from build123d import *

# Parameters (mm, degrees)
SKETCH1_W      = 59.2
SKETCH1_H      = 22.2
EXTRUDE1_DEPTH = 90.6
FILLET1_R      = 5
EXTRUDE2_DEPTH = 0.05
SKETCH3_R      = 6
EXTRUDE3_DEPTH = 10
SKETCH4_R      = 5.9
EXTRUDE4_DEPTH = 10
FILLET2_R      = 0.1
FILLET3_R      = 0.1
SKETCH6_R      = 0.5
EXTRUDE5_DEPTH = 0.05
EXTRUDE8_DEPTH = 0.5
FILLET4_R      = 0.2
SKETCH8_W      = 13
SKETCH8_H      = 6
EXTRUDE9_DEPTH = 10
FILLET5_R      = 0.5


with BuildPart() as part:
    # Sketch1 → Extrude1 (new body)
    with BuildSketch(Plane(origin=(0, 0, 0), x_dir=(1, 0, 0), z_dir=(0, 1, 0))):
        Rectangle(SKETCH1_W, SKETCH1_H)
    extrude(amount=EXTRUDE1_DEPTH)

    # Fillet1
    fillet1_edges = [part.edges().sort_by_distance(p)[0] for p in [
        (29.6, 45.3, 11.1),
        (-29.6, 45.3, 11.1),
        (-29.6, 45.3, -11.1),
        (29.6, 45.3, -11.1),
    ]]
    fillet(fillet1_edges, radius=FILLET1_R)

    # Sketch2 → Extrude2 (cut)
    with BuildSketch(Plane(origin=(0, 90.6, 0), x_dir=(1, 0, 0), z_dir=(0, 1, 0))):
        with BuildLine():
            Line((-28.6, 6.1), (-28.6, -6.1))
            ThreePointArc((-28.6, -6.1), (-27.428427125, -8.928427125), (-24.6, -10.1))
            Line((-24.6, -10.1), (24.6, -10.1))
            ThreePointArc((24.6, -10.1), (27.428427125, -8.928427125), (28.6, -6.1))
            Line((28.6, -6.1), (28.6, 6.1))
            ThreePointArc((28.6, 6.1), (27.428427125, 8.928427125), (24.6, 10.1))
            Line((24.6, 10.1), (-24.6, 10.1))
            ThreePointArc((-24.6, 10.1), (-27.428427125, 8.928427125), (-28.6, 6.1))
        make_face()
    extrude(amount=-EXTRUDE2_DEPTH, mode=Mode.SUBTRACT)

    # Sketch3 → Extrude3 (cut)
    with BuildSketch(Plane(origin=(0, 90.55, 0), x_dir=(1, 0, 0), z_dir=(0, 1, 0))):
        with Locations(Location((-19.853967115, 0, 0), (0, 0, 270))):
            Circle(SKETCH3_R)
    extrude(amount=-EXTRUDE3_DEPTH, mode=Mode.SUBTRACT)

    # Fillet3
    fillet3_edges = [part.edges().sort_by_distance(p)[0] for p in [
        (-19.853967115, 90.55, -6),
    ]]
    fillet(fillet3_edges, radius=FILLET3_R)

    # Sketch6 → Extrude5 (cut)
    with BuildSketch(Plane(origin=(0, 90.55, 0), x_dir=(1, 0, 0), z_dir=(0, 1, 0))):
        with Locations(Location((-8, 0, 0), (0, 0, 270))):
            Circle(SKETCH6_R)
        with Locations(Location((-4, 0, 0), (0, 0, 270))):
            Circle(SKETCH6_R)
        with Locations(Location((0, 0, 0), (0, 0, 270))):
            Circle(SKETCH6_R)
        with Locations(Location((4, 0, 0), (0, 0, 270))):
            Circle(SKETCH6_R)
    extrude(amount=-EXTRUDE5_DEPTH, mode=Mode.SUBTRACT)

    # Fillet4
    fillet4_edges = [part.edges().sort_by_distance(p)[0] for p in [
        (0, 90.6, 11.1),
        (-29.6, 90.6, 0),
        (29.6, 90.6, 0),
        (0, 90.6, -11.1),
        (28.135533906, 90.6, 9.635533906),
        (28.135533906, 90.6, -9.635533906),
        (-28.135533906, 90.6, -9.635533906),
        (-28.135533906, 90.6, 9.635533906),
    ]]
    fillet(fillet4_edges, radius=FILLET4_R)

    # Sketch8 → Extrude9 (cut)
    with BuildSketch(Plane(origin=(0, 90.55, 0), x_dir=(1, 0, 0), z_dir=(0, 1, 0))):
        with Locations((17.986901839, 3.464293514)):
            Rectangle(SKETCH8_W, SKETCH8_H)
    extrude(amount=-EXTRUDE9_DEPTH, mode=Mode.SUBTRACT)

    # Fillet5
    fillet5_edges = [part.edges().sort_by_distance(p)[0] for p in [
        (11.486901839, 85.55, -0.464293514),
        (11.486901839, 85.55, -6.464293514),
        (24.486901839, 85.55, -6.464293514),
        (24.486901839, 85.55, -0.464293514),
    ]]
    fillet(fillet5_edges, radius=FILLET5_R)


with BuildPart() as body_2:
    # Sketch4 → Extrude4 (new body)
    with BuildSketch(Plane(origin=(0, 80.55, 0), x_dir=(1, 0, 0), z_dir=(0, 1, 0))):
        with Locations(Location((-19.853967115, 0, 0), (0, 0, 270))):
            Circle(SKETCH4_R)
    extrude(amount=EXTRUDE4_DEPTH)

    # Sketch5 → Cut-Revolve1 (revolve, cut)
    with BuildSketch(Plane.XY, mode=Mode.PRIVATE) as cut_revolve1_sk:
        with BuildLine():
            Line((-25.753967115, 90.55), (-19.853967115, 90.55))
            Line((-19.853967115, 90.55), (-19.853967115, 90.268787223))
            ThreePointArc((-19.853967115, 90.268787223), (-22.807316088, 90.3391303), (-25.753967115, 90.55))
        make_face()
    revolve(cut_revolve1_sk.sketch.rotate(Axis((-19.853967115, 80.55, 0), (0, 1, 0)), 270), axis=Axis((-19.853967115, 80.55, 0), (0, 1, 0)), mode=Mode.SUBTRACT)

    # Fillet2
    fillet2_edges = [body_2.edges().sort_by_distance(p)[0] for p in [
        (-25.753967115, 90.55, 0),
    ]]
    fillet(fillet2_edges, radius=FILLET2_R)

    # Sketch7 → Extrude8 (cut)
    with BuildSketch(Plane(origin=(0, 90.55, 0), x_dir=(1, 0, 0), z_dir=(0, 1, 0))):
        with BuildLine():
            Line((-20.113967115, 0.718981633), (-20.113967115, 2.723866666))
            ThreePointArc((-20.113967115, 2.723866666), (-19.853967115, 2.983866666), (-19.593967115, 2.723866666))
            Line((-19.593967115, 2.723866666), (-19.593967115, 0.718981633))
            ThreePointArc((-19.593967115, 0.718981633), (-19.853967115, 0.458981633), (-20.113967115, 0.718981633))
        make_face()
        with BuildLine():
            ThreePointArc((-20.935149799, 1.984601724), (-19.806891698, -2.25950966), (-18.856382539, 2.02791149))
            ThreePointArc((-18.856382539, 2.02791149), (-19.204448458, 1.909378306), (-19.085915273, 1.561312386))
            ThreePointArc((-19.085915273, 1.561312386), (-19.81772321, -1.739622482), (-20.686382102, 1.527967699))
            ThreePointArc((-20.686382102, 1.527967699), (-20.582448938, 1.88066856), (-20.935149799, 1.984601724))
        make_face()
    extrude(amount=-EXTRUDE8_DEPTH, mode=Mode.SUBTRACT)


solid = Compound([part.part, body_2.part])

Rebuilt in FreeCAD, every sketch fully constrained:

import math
import FreeCAD as App
import Part
import Sketcher


def edges_at(feature, points):
    """Names of the edges that pass closest to the given points."""
    edges = feature.Shape.Edges
    near = lambda p: min(range(len(edges)), key=lambda i: edges[i].distToShape(Part.Vertex(*p))[0])
    return sorted({f"Edge{near(p) + 1}" for p in points})

doc = App.newDocument("Part")
body = doc.addObject("PartDesign::Body", "Body")

sketch1 = doc.addObject("Sketcher::SketchObject", "Sketch")
body.addObject(sketch1)
sketch1.AttachmentSupport = (doc.XZ_Plane, [""])
sketch1.MapMode = "FlatFace"
sketch1.addGeometry(Part.LineSegment(App.Vector(-30, -11, 0), App.Vector(-30, 11, 0)), False)
sketch1.addGeometry(Part.LineSegment(App.Vector(-30, 11, 0), App.Vector(30, 11, 0)), False)
sketch1.addGeometry(Part.LineSegment(App.Vector(30, 11, 0), App.Vector(30, -11, 0)), False)
sketch1.addGeometry(Part.LineSegment(App.Vector(30, -11, 0), App.Vector(-30, -11, 0)), False)
sketch1.addConstraint(Sketcher.Constraint("Coincident", 0, 2, 1, 1))
sketch1.addConstraint(Sketcher.Constraint("Coincident", 1, 2, 2, 1))
sketch1.addConstraint(Sketcher.Constraint("Coincident", 2, 2, 3, 1))
sketch1.addConstraint(Sketcher.Constraint("Coincident", 3, 2, 0, 1))
sketch1.addConstraint(Sketcher.Constraint("Vertical", 0))
sketch1.addConstraint(Sketcher.Constraint("Horizontal", 1))
sketch1.addConstraint(Sketcher.Constraint("Vertical", 2))
sketch1.addConstraint(Sketcher.Constraint("Horizontal", 3))
sketch1.addConstraint(Sketcher.Constraint("Symmetric", 0, 2, 2, 2, -1, 1))
sketch1.addConstraint(Sketcher.Constraint("DistanceX", 1, 1, 1, 2, 59.2))
sketch1.addConstraint(Sketcher.Constraint("DistanceY", 0, 1, 0, 2, 22.2))
pad1 = doc.addObject("PartDesign::Pad", "Pad")
body.addObject(pad1)
pad1.Profile = sketch1
pad1.Length = 90.6
pad1.Reversed = True
doc.recompute()

fillet = doc.addObject("PartDesign::Fillet", "Fillet")
body.addObject(fillet)
fillet.Base = (pad1, edges_at(pad1, [
    (29.6, 45.3, 11.1),
    (-29.6, 45.3, 11.1),
    (-29.6, 45.3, -11.1),
    (29.6, 45.3, -11.1),
]))
fillet.Radius = 5

sketch2 = doc.addObject("Sketcher::SketchObject", "Sketch001")
body.addObject(sketch2)
sketch2.AttachmentSupport = (doc.XZ_Plane, [""])
sketch2.MapMode = "FlatFace"
sketch2.AttachmentOffset = App.Placement(App.Vector(0, 0, -90.6), App.Rotation())
sketch2.addGeometry(Part.LineSegment(App.Vector(-28.6, -6.1, 0), App.Vector(-28.6, 6.1, 0)), False)
sketch2.addGeometry(Part.ArcOfCircle(Part.Circle(App.Vector(-24.6, 6.1, 0), App.Vector(0, 0, 1), 4), math.radians(90), math.radians(180)), False)
sketch2.addGeometry(Part.LineSegment(App.Vector(-24.6, 10.1, 0), App.Vector(24.6, 10.1, 0)), False)
sketch2.addGeometry(Part.ArcOfCircle(Part.Circle(App.Vector(24.6, 6.1, 0), App.Vector(0, 0, 1), 4), math.radians(0), math.radians(90)), False)
sketch2.addGeometry(Part.LineSegment(App.Vector(28.6, 6.1, 0), App.Vector(28.6, -6.1, 0)), False)
sketch2.addGeometry(Part.ArcOfCircle(Part.Circle(App.Vector(24.6, -6.1, 0), App.Vector(0, 0, 1), 4), math.radians(-90), math.radians(0)), False)
sketch2.addGeometry(Part.LineSegment(App.Vector(24.6, -10.1, 0), App.Vector(-24.6, -10.1, 0)), False)
sketch2.addGeometry(Part.ArcOfCircle(Part.Circle(App.Vector(-24.6, -6.1, 0), App.Vector(0, 0, 1), 4), math.radians(180), math.radians(270)), False)
sketch2.addConstraint(Sketcher.Constraint("Tangent", 0, 2, 1, 2))
sketch2.addConstraint(Sketcher.Constraint("Tangent", 1, 1, 2, 1))
sketch2.addConstraint(Sketcher.Constraint("Tangent", 2, 2, 3, 2))
sketch2.addConstraint(Sketcher.Constraint("Tangent", 3, 1, 4, 1))
sketch2.addConstraint(Sketcher.Constraint("Tangent", 4, 2, 5, 2))
sketch2.addConstraint(Sketcher.Constraint("Tangent", 5, 1, 6, 1))
sketch2.addConstraint(Sketcher.Constraint("Tangent", 6, 2, 7, 2))
sketch2.addConstraint(Sketcher.Constraint("Tangent", 7, 1, 0, 1))
sketch2.addConstraint(Sketcher.Constraint("Vertical", 0))
sketch2.addConstraint(Sketcher.Constraint("Horizontal", 2))
sketch2.addConstraint(Sketcher.Constraint("Vertical", 4))
sketch2.addConstraint(Sketcher.Constraint("Horizontal", 6))
sketch2.addConstraint(Sketcher.Constraint("Equal", 1, 3))
sketch2.addConstraint(Sketcher.Constraint("Equal", 3, 5))
sketch2.addConstraint(Sketcher.Constraint("Equal", 5, 7))
sketch2.addConstraint(Sketcher.Constraint("Symmetric", 1, 3, 5, 3, -1, 1))
sketch2.addConstraint(Sketcher.Constraint("Radius", 1, 4.0))
sketch2.addConstraint(Sketcher.Constraint("DistanceX", 2, 1, 2, 2, 49.2))
sketch2.addConstraint(Sketcher.Constraint("DistanceY", 0, 1, 0, 2, 12.2))
pocket1 = doc.addObject("PartDesign::Pocket", "Pocket")
body.addObject(pocket1)
pocket1.Profile = sketch2
pocket1.Length = 0.05
pocket1.Reversed = True

sketch3 = doc.addObject("Sketcher::SketchObject", "Sketch002")
body.addObject(sketch3)
sketch3.AttachmentSupport = (doc.XZ_Plane, [""])
sketch3.MapMode = "FlatFace"
sketch3.AttachmentOffset = App.Placement(App.Vector(0, 0, -90.55), App.Rotation())
sketch3.addGeometry(Part.Circle(App.Vector(-20, 0, 0), App.Vector(0, 0, 1), 6), False)
sketch3.addConstraint(Sketcher.Constraint("PointOnObject", 0, 3, -1))
sketch3.addConstraint(Sketcher.Constraint("Diameter", 0, 12.0))
sketch3.addConstraint(Sketcher.Constraint("DistanceX", 0, 3, -1, 1, 19.853967))
pocket2 = doc.addObject("PartDesign::Pocket", "Pocket001")
body.addObject(pocket2)
pocket2.Profile = sketch3
pocket2.Length = 10
pocket2.Reversed = True
doc.recompute()

fillet2 = doc.addObject("PartDesign::Fillet", "Fillet001")
body.addObject(fillet2)
fillet2.Base = (pocket2, edges_at(pocket2, [(-19.854, 90.55, -6)]))
fillet2.Radius = 0.1

sketch4 = doc.addObject("Sketcher::SketchObject", "Sketch003")
body.addObject(sketch4)
sketch4.AttachmentSupport = (doc.XZ_Plane, [""])
sketch4.MapMode = "FlatFace"
sketch4.AttachmentOffset = App.Placement(App.Vector(0, 0, -90.55), App.Rotation())
sketch4.addGeometry(Part.Circle(App.Vector(-8, 0, 0), App.Vector(0, 0, 1), 0.5), False)
sketch4.addGeometry(Part.Circle(App.Vector(-4, 0, 0), App.Vector(0, 0, 1), 0.5), False)
sketch4.addGeometry(Part.Circle(App.Vector(0, 0, 0), App.Vector(0, 0, 1), 0.5), False)
sketch4.addGeometry(Part.Circle(App.Vector(4, 0, 0), App.Vector(0, 0, 1), 0.5), False)
sketch4.addConstraint(Sketcher.Constraint("Coincident", 2, 3, -1, 1))
sketch4.addConstraint(Sketcher.Constraint("Equal", 0, 1))
sketch4.addConstraint(Sketcher.Constraint("Equal", 1, 2))
sketch4.addConstraint(Sketcher.Constraint("Equal", 2, 3))
sketch4.addConstraint(Sketcher.Constraint("Symmetric", 1, 3, 3, 3, -1, 1))
sketch4.addConstraint(Sketcher.Constraint("PointOnObject", 0, 3, -1))
sketch4.addConstraint(Sketcher.Constraint("PointOnObject", 1, 3, -1))
sketch4.addConstraint(Sketcher.Constraint("Diameter", 0, 1.0))
sketch4.addConstraint(Sketcher.Constraint("DistanceX", 0, 3, -1, 1, 8.0))
sketch4.addConstraint(Sketcher.Constraint("DistanceX", 1, 3, -1, 1, 4.0))
pocket3 = doc.addObject("PartDesign::Pocket", "Pocket002")
body.addObject(pocket3)
pocket3.Profile = sketch4
pocket3.Length = 0.05
pocket3.Reversed = True
doc.recompute()

fillet3 = doc.addObject("PartDesign::Fillet", "Fillet002")
body.addObject(fillet3)
fillet3.Base = (pocket3, edges_at(pocket3, [
    (0, 90.6, 11.1),
    (-29.6, 90.6, 0),
    (29.6, 90.6, 0),
    (0, 90.6, -11.1),
    (28.136, 90.6, 9.636),
    (28.136, 90.6, -9.636),
    (-28.136, 90.6, -9.636),
    (-28.136, 90.6, 9.636),
]))
fillet3.Radius = 0.2

sketch5 = doc.addObject("Sketcher::SketchObject", "Sketch004")
body.addObject(sketch5)
sketch5.AttachmentSupport = (doc.XZ_Plane, [""])
sketch5.MapMode = "FlatFace"
sketch5.AttachmentOffset = App.Placement(App.Vector(0, 0, -90.55), App.Rotation())
sketch5.addGeometry(Part.LineSegment(App.Vector(11, -6, 0), App.Vector(11, 0, 0)), False)
sketch5.addGeometry(Part.LineSegment(App.Vector(11, 0, 0), App.Vector(24, 0, 0)), False)
sketch5.addGeometry(Part.LineSegment(App.Vector(24, 0, 0), App.Vector(24, -6, 0)), False)
sketch5.addGeometry(Part.LineSegment(App.Vector(24, -6, 0), App.Vector(11, -6, 0)), False)
sketch5.addConstraint(Sketcher.Constraint("Coincident", 0, 2, 1, 1))
sketch5.addConstraint(Sketcher.Constraint("Coincident", 1, 2, 2, 1))
sketch5.addConstraint(Sketcher.Constraint("Coincident", 2, 2, 3, 1))
sketch5.addConstraint(Sketcher.Constraint("Coincident", 3, 2, 0, 1))
sketch5.addConstraint(Sketcher.Constraint("Vertical", 0))
sketch5.addConstraint(Sketcher.Constraint("Horizontal", 1))
sketch5.addConstraint(Sketcher.Constraint("Vertical", 2))
sketch5.addConstraint(Sketcher.Constraint("Horizontal", 3))
sketch5.addConstraint(Sketcher.Constraint("DistanceX", 1, 1, 1, 2, 13.0))
sketch5.addConstraint(Sketcher.Constraint("DistanceY", 0, 1, 0, 2, 6.0))
sketch5.addConstraint(Sketcher.Constraint("DistanceX", -1, 1, 0, 2, 11.486902))
sketch5.addConstraint(Sketcher.Constraint("DistanceY", 0, 2, -1, 1, 0.464294))
pocket4 = doc.addObject("PartDesign::Pocket", "Pocket003")
body.addObject(pocket4)
pocket4.Profile = sketch5
pocket4.Length = 10
pocket4.Reversed = True
doc.recompute()

fillet4 = doc.addObject("PartDesign::Fillet", "Fillet003")
body.addObject(fillet4)
fillet4.Base = (pocket4, edges_at(pocket4, [
    (11.487, 85.55, -0.464),
    (11.487, 85.55, -6.464),
    (24.487, 85.55, -6.464),
    (24.487, 85.55, -0.464),
]))
fillet4.Radius = 0.5
body2 = doc.addObject("PartDesign::Body", "Body001")

sketch6 = doc.addObject("Sketcher::SketchObject", "Sketch005")
body2.addObject(sketch6)
sketch6.AttachmentSupport = (doc.getObject("XZ_Plane001"), [""])
sketch6.MapMode = "FlatFace"
sketch6.AttachmentOffset = App.Placement(App.Vector(0, 0, -80.55), App.Rotation())
sketch6.addGeometry(Part.Circle(App.Vector(-20, 0, 0), App.Vector(0, 0, 1), 6), False)
sketch6.addConstraint(Sketcher.Constraint("PointOnObject", 0, 3, -1))
sketch6.addConstraint(Sketcher.Constraint("Diameter", 0, 11.8))
sketch6.addConstraint(Sketcher.Constraint("DistanceX", 0, 3, -1, 1, 19.853967))
pad2 = doc.addObject("PartDesign::Pad", "Pad001")
body2.addObject(pad2)
pad2.Profile = sketch6
pad2.Length = 10
pad2.Reversed = True

sketch7 = doc.addObject("Sketcher::SketchObject", "Sketch006")
body2.addObject(sketch7)
sketch7.AttachmentSupport = (doc.getObject("XY_Plane001"), [""])
sketch7.MapMode = "FlatFace"
sketch7.addGeometry(Part.LineSegment(App.Vector(-19.85, 90.55, 0), App.Vector(-25.75, 90.55, 0)), False)
sketch7.addGeometry(Part.ArcOfCircle(Part.Circle(App.Vector(-19.85, 152.3, 0), App.Vector(0, 0, 1), 62.03), math.radians(-95.46), math.radians(-90)), False)
sketch7.addGeometry(Part.LineSegment(App.Vector(-19.85, 90.27, 0), App.Vector(-19.85, 90.55, 0)), False)
sketch7.addGeometry(Part.LineSegment(App.Vector(-19.85, 90.27, 0), App.Vector(-19.85, 152.3, 0)), True)
sketch7.addConstraint(Sketcher.Constraint("Coincident", 0, 2, 1, 1))
sketch7.addConstraint(Sketcher.Constraint("Coincident", 1, 2, 2, 1))
sketch7.addConstraint(Sketcher.Constraint("Coincident", 2, 2, 0, 1))
sketch7.addConstraint(Sketcher.Constraint("Horizontal", 0))
sketch7.addConstraint(Sketcher.Constraint("Vertical", 2))
sketch7.addConstraint(Sketcher.Constraint("Vertical", 3))
sketch7.addConstraint(Sketcher.Constraint("Coincident", 3, 1, 1, 2))
sketch7.addConstraint(Sketcher.Constraint("Coincident", 3, 2, 1, 3))
sketch7.addConstraint(Sketcher.Constraint("DistanceX", 0, 2, 0, 1, 5.9))
sketch7.addConstraint(Sketcher.Constraint("DistanceY", -1, 1, 0, 2, 90.55))
sketch7.addConstraint(Sketcher.Constraint("Radius", 1, 62.033242))
sketch7.addConstraint(Sketcher.Constraint("DistanceX", 1, 3, -1, 1, 19.853967))
groove = doc.addObject("PartDesign::Groove", "Groove")
body2.addObject(groove)
groove.Profile = sketch7
groove.ReferenceAxis = (sketch7, ["Axis0"])
groove.Angle = 360
doc.recompute()

fillet5 = doc.addObject("PartDesign::Fillet", "Fillet004")
body2.addObject(fillet5)
fillet5.Base = (groove, edges_at(groove, [(-25.754, 90.55, 0)]))
fillet5.Radius = 0.1

sketch8 = doc.addObject("Sketcher::SketchObject", "Sketch007")
body2.addObject(sketch8)
sketch8.AttachmentSupport = (doc.getObject("XZ_Plane001"), [""])
sketch8.MapMode = "FlatFace"
sketch8.AttachmentOffset = App.Placement(App.Vector(0, 0, -90.55), App.Rotation())
sketch8.addGeometry(Part.LineSegment(App.Vector(-20.11, -2.72, 0), App.Vector(-20.11, -0.72, 0)), False)
sketch8.addGeometry(Part.ArcOfCircle(Part.Circle(App.Vector(-19.85, -0.72, 0), App.Vector(0, 0, 1), 0.26), math.radians(0), math.radians(180)), False)
sketch8.addGeometry(Part.LineSegment(App.Vector(-19.59, -0.72, 0), App.Vector(-19.59, -2.72, 0)), False)
sketch8.addGeometry(Part.ArcOfCircle(Part.Circle(App.Vector(-19.85, -2.72, 0), App.Vector(0, 0, 1), 0.26), math.radians(180), math.radians(360)), False)
sketch8.addGeometry(Part.ArcOfCircle(Part.Circle(App.Vector(-19.85, 0, 0), App.Vector(0, 0, 1), 2.26), math.radians(-64), math.radians(241)), False)
sketch8.addGeometry(Part.ArcOfCircle(Part.Circle(App.Vector(-18.97, -1.79, 0), App.Vector(0, 0, 1), 0.26), math.radians(116), math.radians(296)), False)
sketch8.addGeometry(Part.ArcOfCircle(Part.Circle(App.Vector(-19.85, 0, 0), App.Vector(0, 0, 1), 1.74), math.radians(-64), math.radians(241)), False)
sketch8.addGeometry(Part.ArcOfCircle(Part.Circle(App.Vector(-20.81, -1.76, 0), App.Vector(0, 0, 1), 0.26), math.radians(-119), math.radians(61)), False)
sketch8.addConstraint(Sketcher.Constraint("Tangent", 0, 2, 1, 2))
sketch8.addConstraint(Sketcher.Constraint("Tangent", 1, 1, 2, 1))
sketch8.addConstraint(Sketcher.Constraint("Tangent", 2, 2, 3, 2))
sketch8.addConstraint(Sketcher.Constraint("Tangent", 3, 1, 0, 1))
sketch8.addConstraint(Sketcher.Constraint("Tangent", 4, 1, 5, 2))
sketch8.addConstraint(Sketcher.Constraint("Tangent", 5, 1, 6, 1))
sketch8.addConstraint(Sketcher.Constraint("Tangent", 6, 2, 7, 2))
sketch8.addConstraint(Sketcher.Constraint("Tangent", 7, 1, 4, 2))
sketch8.addConstraint(Sketcher.Constraint("Vertical", 0))
sketch8.addConstraint(Sketcher.Constraint("Vertical", 2))
sketch8.addConstraint(Sketcher.Constraint("Coincident", 6, 3, 4, 3))
sketch8.addConstraint(Sketcher.Constraint("Equal", 3, 5))
sketch8.addConstraint(Sketcher.Constraint("PointOnObject", 4, 3, -1))
sketch8.addConstraint(Sketcher.Constraint("Vertical", 3, 3, 4, 3))
sketch8.addConstraint(Sketcher.Constraint("Radius", 1, 0.26))
sketch8.addConstraint(Sketcher.Constraint("Radius", 4, 2.26))
sketch8.addConstraint(Sketcher.Constraint("DistanceY", 7, 1, -1, 1, 1.984602))
sketch8.addConstraint(Sketcher.Constraint("DistanceY", 4, 1, 5, 3, 0.2333))
sketch8.addConstraint(Sketcher.Constraint("DistanceY", 3, 1, 6, 2, 1.195899))
sketch8.addConstraint(Sketcher.Constraint("DistanceY", 0, 1, 0, 2, 2.004885))
sketch8.addConstraint(Sketcher.Constraint("DistanceX", 5, 3, -1, 1, 18.971149))
pocket5 = doc.addObject("PartDesign::Pocket", "Pocket004")
body2.addObject(pocket5)
pocket5.Profile = sketch8
pocket5.Length = 0.5
pocket5.Reversed = True

doc.recompute()
